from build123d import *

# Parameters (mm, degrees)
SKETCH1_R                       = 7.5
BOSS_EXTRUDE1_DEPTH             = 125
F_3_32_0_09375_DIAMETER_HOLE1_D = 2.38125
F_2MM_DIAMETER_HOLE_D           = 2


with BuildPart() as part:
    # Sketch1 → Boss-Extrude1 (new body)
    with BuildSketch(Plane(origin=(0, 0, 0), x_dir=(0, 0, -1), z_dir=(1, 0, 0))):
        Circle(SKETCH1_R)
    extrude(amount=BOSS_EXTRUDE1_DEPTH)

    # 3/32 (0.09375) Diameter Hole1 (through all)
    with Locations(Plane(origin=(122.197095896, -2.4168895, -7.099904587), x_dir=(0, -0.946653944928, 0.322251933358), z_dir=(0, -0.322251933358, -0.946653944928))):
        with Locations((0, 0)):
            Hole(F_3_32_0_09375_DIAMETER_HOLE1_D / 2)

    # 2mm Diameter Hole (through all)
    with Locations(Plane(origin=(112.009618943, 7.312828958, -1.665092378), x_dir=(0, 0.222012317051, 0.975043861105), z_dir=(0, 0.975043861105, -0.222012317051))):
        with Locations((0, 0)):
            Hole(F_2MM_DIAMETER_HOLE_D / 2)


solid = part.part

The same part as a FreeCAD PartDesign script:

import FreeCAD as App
import Part
import Sketcher

V = App.Vector
Q = App.Units.Quantity

doc = App.newDocument("Part")
body = doc.addObject("PartDesign::Body", "Body")

# Sketch on YZ plane
sketch1 = doc.addObject("Sketcher::SketchObject", "Sketch")
body.addObject(sketch1)
sketch1.AttachmentSupport = (doc.YZ_Plane, [""])
sketch1.MapMode = "FlatFace"
sketch1.addGeometry(Part.Circle(V(0, 0, 0), V(0, 0, 1), 8), False)
sketch1.addConstraint(Sketcher.Constraint("Coincident", 0, 3, -1, 1))
sketch1.addConstraint(Sketcher.Constraint("Diameter", 0, Q("15 mm")))
pad1 = doc.addObject("PartDesign::Pad", "Pad")
body.addObject(pad1)
pad1.Profile = sketch1
pad1.Length = 125

# Sketch on an angled plane
sketch2 = doc.addObject("Sketcher::SketchObject", "Sketch001")
body.addObject(sketch2)
sketch2.Placement = App.Placement(V(0, -2.416889, -7.099905), App.Rotation(V(0, -0.946653945, 0.322251933), V(-1, 0, 0), V(0, -0.322251933, -0.946653945), "ZXY"))
sketch2.addGeometry(Part.Circle(V(0, -122.2, 0), V(0, 0, 1), 1.2), False)
sketch2.addConstraint(Sketcher.Constraint("PointOnObject", 0, 3, -2))
sketch2.addConstraint(Sketcher.Constraint("Diameter", 0, Q("2.38125 mm")))
sketch2.addConstraint(Sketcher.Constraint("DistanceY", 0, 3, -1, 1, Q("122.197096 mm")))
doc.recompute()
hole = doc.addObject("PartDesign::Hole", "Hole")
body.addObject(hole)
hole.Profile = sketch2
hole.ThreadType = "None"
hole.Diameter = 2.38125
hole.DepthType = "ThroughAll"

# Sketch on an angled plane
sketch3 = doc.addObject("Sketcher::SketchObject", "Sketch002")
body.addObject(sketch3)
sketch3.Placement = App.Placement(V(0, 7.312829, -1.665092), App.Rotation(V(0, 0.222012317, 0.975043861), V(1, 0, 0), V(0, 0.975043861, -0.222012317), "ZXY"))
sketch3.addGeometry(Part.Circle(V(0, 112, 0), V(0, 0, 1), 1), False)
sketch3.addConstraint(Sketcher.Constraint("PointOnObject", 0, 3, -2))
sketch3.addConstraint(Sketcher.Constraint("Diameter", 0, Q("2 mm")))
sketch3.addConstraint(Sketcher.Constraint("DistanceY", -1, 1, 0, 3, Q("112.009619 mm")))
doc.recompute()
hole2 = doc.addObject("PartDesign::Hole", "Hole001")
body.addObject(hole2)
hole2.Profile = sketch3
hole2.ThreadType = "None"
hole2.Diameter = 2
hole2.DepthType = "ThroughAll"

doc.recompute()
